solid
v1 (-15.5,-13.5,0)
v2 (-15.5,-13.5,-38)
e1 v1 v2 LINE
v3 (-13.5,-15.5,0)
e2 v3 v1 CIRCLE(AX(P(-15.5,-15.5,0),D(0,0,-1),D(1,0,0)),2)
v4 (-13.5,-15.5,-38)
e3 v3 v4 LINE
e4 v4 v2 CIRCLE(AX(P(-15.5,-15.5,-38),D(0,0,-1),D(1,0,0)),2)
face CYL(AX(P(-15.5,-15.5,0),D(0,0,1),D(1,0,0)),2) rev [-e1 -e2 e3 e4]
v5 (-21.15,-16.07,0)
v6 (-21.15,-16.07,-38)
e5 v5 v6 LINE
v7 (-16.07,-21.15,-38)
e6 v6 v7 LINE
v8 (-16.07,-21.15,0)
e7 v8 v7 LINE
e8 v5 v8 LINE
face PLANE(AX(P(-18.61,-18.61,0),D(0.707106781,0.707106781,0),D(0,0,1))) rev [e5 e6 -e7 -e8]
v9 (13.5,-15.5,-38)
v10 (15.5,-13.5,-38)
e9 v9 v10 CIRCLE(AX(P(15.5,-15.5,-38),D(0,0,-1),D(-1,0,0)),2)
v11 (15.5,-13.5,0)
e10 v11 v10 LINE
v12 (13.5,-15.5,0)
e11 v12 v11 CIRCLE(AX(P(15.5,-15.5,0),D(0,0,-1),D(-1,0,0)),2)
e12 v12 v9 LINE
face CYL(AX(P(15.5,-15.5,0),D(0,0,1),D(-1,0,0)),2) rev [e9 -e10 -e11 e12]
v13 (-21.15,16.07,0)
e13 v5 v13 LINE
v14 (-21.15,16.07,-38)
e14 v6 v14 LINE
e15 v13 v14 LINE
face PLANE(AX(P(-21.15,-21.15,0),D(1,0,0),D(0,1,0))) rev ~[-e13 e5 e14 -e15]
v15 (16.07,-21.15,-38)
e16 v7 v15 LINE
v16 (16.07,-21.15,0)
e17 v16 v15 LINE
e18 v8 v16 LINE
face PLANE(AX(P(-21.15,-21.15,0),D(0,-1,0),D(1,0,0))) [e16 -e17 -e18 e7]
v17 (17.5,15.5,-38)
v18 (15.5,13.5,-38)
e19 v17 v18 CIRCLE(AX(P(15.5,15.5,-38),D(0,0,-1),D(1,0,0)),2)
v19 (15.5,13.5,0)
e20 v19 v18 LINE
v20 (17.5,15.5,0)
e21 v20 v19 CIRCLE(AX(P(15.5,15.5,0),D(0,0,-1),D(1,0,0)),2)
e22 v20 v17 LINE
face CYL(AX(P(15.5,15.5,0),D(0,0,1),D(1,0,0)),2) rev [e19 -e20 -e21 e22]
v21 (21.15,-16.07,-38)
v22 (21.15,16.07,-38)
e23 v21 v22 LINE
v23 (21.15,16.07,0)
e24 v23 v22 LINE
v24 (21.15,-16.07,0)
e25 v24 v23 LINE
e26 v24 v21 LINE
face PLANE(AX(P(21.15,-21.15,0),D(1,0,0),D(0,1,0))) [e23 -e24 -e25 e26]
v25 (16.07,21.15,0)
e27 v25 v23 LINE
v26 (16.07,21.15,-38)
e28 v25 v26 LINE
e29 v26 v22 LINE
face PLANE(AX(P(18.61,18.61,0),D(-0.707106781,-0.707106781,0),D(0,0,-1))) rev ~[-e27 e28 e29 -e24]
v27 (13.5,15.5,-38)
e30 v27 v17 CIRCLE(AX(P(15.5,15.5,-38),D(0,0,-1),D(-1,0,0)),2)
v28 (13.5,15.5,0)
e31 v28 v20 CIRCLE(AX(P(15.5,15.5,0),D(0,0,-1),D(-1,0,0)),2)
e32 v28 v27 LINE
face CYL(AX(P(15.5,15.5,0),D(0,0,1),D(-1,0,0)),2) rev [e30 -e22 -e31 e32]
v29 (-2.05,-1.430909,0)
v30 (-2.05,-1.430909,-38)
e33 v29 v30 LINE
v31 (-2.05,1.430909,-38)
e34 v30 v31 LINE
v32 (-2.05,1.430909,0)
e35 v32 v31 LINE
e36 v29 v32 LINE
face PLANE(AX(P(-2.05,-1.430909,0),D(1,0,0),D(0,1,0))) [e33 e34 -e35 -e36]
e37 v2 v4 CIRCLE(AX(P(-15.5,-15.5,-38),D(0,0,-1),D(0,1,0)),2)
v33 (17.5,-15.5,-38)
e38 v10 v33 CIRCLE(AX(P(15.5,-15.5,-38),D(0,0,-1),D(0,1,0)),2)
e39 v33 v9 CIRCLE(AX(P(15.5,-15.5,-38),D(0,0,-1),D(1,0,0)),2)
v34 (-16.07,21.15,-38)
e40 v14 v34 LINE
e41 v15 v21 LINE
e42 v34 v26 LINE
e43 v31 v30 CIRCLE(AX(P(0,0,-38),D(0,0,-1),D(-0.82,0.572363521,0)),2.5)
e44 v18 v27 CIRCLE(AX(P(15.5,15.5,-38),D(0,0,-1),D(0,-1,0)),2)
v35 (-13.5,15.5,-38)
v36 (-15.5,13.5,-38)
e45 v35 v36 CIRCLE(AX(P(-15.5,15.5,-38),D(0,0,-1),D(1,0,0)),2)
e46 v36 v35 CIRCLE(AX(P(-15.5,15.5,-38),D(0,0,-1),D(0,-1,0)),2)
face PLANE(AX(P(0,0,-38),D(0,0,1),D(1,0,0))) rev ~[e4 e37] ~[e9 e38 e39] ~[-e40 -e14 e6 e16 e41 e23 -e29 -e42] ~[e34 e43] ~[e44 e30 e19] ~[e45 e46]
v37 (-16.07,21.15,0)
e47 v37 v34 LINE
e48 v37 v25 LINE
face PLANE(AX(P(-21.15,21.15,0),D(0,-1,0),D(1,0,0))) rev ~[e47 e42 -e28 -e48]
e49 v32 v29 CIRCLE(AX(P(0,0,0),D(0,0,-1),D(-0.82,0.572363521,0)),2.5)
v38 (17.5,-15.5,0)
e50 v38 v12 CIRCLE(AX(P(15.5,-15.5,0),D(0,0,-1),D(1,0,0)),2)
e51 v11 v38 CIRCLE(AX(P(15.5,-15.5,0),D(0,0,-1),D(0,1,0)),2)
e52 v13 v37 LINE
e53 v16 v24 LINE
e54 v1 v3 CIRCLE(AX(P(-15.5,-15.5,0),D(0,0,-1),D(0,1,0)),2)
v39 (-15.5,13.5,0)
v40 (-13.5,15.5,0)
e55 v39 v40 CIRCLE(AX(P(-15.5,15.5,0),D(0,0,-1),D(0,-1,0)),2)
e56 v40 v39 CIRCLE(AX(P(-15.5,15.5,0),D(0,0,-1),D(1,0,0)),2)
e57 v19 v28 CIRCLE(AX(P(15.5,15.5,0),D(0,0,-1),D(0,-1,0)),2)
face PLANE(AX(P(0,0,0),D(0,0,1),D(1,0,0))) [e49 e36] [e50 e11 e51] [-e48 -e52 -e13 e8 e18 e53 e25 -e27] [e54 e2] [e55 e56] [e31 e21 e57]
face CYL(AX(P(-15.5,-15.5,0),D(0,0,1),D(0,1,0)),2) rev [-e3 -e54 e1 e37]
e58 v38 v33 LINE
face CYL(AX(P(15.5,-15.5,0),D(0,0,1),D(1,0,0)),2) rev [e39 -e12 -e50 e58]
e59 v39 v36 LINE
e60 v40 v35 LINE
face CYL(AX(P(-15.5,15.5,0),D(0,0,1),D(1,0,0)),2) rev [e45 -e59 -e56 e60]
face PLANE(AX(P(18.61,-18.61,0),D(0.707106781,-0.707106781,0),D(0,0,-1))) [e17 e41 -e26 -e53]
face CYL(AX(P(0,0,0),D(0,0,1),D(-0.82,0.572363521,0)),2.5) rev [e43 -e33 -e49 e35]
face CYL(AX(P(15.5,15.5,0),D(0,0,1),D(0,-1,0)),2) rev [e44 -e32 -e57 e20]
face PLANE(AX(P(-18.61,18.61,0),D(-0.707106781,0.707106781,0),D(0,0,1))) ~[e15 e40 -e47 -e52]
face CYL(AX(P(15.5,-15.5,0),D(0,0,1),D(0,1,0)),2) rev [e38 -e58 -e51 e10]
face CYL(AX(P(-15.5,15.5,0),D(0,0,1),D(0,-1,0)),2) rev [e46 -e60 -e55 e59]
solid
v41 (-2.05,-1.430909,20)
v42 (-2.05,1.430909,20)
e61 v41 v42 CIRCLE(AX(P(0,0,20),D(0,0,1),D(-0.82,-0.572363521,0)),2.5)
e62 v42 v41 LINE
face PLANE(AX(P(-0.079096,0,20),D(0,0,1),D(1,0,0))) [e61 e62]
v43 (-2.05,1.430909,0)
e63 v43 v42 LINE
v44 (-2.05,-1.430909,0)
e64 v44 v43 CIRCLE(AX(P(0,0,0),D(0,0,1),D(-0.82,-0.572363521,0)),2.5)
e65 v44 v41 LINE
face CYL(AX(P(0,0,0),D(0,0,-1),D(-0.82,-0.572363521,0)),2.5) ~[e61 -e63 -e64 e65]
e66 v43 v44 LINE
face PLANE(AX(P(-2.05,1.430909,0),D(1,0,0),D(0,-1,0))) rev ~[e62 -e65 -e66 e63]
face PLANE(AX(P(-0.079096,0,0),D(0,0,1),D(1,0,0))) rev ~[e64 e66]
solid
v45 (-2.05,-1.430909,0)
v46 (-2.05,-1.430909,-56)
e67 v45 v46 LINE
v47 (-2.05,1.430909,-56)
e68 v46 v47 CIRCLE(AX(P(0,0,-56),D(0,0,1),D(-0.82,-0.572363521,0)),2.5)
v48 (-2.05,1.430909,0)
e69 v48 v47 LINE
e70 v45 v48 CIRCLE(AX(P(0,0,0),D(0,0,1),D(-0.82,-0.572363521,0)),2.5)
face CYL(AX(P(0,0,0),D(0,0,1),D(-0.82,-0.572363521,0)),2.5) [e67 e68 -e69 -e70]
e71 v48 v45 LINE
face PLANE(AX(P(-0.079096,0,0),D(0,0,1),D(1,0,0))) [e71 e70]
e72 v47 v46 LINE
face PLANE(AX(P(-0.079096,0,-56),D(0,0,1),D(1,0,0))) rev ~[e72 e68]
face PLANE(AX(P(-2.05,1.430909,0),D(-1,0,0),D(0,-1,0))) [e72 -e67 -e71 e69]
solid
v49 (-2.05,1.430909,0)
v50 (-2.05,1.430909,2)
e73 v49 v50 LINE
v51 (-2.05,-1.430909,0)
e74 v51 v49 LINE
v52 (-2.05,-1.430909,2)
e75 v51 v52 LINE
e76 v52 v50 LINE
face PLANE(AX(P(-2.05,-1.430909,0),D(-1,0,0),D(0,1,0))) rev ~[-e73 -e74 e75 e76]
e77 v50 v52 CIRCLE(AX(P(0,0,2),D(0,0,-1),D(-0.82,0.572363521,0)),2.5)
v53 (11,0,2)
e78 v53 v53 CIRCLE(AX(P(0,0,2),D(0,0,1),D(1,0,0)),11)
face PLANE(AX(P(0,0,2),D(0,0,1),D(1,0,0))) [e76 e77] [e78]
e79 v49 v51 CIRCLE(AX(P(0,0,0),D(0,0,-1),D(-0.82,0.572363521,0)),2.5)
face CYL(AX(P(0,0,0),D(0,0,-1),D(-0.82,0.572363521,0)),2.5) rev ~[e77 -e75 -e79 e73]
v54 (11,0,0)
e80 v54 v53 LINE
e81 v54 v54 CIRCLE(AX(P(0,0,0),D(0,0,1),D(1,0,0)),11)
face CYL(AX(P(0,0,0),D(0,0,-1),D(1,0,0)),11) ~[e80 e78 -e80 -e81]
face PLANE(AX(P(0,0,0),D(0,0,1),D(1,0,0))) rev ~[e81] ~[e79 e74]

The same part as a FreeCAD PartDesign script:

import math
import FreeCAD as App
import Part
import Sketcher
from FreeCAD import Vector


def edges_at(feature, points):
    """Names of the edges that pass closest to the given points."""
    edges = feature.Shape.Edges
    near = lambda p: min(range(len(edges)), key=lambda i: edges[i].distToShape(Part.Vertex(*p))[0])
    return sorted({f"Edge{near(p) + 1}" for p in points})


def add_polygon(sketch, points):
    """Adds a closed chain of lines whose ends are joined by coincident constraints."""
    first, n = sketch.GeometryCount, len(points)
    for a, b in zip(points, points[1:] + points[:1]):
        sketch.addGeometry(Part.LineSegment(App.Vector(*a, 0), App.Vector(*b, 0)), False)
    for i in range(n):
        sketch.addConstraint(Sketcher.Constraint("Coincident", first + i, 2, first + (i + 1) % n, 1))

doc = App.newDocument("Part")
params = doc.addObject("Spreadsheet::Sheet", "Params")
for row, (alias, value) in enumerate([
    ("sketch1_radius", "2.5 mm"),
    ("pad1_length", "20 mm"),
    ("sketch2_radius", "2 mm"),
    ("sketch2_radius2", "2.5 mm"),
    ("sketch2_width", "42.3 mm"),
    ("pad2_length", "38 mm"),
    ("chamfer_size", "5.08 mm"),
    ("sketch3_diameter", "22 mm"),
    ("sketch3_radius", "2.5 mm"),
    ("pad3_length", "2 mm"),
    ("sketch4_radius", "2.5 mm"),
    ("pad4_length", "56 mm"),
], start=1):
    params.set(f"A{row}", alias)
    params.set(f"B{row}", "=" + value)
    params.setAlias(f"B{row}", alias)

body = doc.addObject("PartDesign::Body", "Body")

# Sketch on XY plane
sketch1 = body.newObject("Sketcher::SketchObject", "Sketch")
sketch1.AttachmentSupport = (doc.getObject("XY_Plane"), [""])
sketch1.MapMode = "FlatFace"
sketch1.addGeometry(Part.LineSegment(Vector(-2, 1.4, 0), Vector(-2, -1.4, 0)), False)
sketch1.addGeometry(Part.ArcOfCircle(Part.Circle(Vector(0, 0, 0), Vector(0, 0, 1), 2.5), math.radians(-145), math.radians(145)), False)
sketch1.addConstraint(Sketcher.Constraint("Coincident", 0, 1, 1, 2))
sketch1.addConstraint(Sketcher.Constraint("Coincident", 1, 1, 0, 2))
sketch1.addConstraint(Sketcher.Constraint("Vertical", 0))
sketch1.addConstraint(Sketcher.Constraint("Coincident", 1, 3, -1, 1))
sketch1.addConstraint(Sketcher.Constraint("Radius", 1, 2.5))
sketch1.addConstraint(Sketcher.Constraint("DistanceX", 0, 1, -1, 1, 2.05))
sketch1.setExpression("Constraints[4]", "Params.sketch1_radius")
pad1 = body.newObject("PartDesign::Pad", "Pad")
pad1.Profile = sketch1
pad1.setExpression("Length", "Params.pad1_length")
body2 = doc.addObject("PartDesign::Body", "Body001")

# Sketch on XY plane
sketch2 = body2.newObject("Sketcher::SketchObject", "Sketch001")
sketch2.AttachmentSupport = (doc.getObject("XY_Plane001"), [""])
sketch2.MapMode = "FlatFace"
add_polygon(sketch2, [(-21.1, 21.1), (-21.1, -21.1), (21.1, -21.1), (21.1, 21.1)])  # lines 0-3
sketch2.addGeometry(Part.ArcOfCircle(Part.Circle(Vector(-15.5, -15.5, 0), Vector(0, 0, 1), 2), math.radians(90), math.radians(360)), False)  # 4
sketch2.addGeometry(Part.ArcOfCircle(Part.Circle(Vector(-15.5, -15.5, 0), Vector(0, 0, 1), 2), math.radians(0), math.radians(90)), False)  # 5
sketch2.addGeometry(Part.ArcOfCircle(Part.Circle(Vector(15.5, -15.5, 0), Vector(0, 0, 1), 2), math.radians(180), math.radians(360)), False)  # 6
sketch2.addGeometry(Part.ArcOfCircle(Part.Circle(Vector(15.5, -15.5, 0), Vector(0, 0, 1), 2), math.radians(90), math.radians(180)), False)  # 7
sketch2.addGeometry(Part.ArcOfCircle(Part.Circle(Vector(15.5, -15.5, 0), Vector(0, 0, 1), 2), math.radians(0), math.radians(90)), False)  # 8
sketch2.addGeometry(Part.ArcOfCircle(Part.Circle(Vector(-15.5, 15.5, 0), Vector(0, 0, 1), 2), math.radians(0), math.radians(270)), False)  # 9
sketch2.addGeometry(Part.ArcOfCircle(Part.Circle(Vector(-15.5, 15.5, 0), Vector(0, 0, 1), 2), math.radians(-90), math.radians(0)), False)  # 10
sketch2.addGeometry(Part.LineSegment(Vector(-2, -1.4, 0), Vector(-2, 1.4, 0)), False)  # 11
sketch2.addGeometry(Part.ArcOfCircle(Part.Circle(Vector(0, 0, 0), Vector(0, 0, 1), 2.5), math.radians(-145), math.radians(145)), False)  # 12
sketch2.addGeometry(Part.ArcOfCircle(Part.Circle(Vector(15.5, 15.5, 0), Vector(0, 0, 1), 2), math.radians(-90), math.radians(0)), False)  # 13
sketch2.addGeometry(Part.ArcOfCircle(Part.Circle(Vector(15.5, 15.5, 0), Vector(0, 0, 1), 2), math.radians(180), math.radians(270)), False)  # 14
sketch2.addGeometry(Part.ArcOfCircle(Part.Circle(Vector(15.5, 15.5, 0), Vector(0, 0, 1), 2), math.radians(0), math.radians(180)), False)  # 15
sketch2.addConstraint(Sketcher.Constraint("Tangent", 4, 1, 5, 2))
sketch2.addConstraint(Sketcher.Constraint("Coincident", 5, 1, 4, 2))
sketch2.addConstraint(Sketcher.Constraint("Tangent", 6, 1, 7, 2))
sketch2.addConstraint(Sketcher.Constraint("Tangent", 7, 1, 8, 2))
sketch2.addConstraint(Sketcher.Constraint("Tangent", 8, 1, 6, 2))
sketch2.addConstraint(Sketcher.Constraint("Tangent", 9, 1, 10, 2))
sketch2.addConstraint(Sketcher.Constraint("Coincident", 10, 1, 9, 2))
sketch2.addConstraint(Sketcher.Constraint("Coincident", 11, 1, 12, 1))
sketch2.addConstraint(Sketcher.Constraint("Coincident", 12, 2, 11, 2))
sketch2.addConstraint(Sketcher.Constraint("Tangent", 13, 1, 14, 2))
sketch2.addConstraint(Sketcher.Constraint("Tangent", 14, 1, 15, 2))
sketch2.addConstraint(Sketcher.Constraint("Tangent", 15, 1, 13, 2))
sketch2.addConstraint(Sketcher.Constraint("Vertical", 0))
sketch2.addConstraint(Sketcher.Constraint("Horizontal", 1))
sketch2.addConstraint(Sketcher.Constraint("Vertical", 2))
sketch2.addConstraint(Sketcher.Constraint("Horizontal", 3))
sketch2.addConstraint(Sketcher.Constraint("Vertical", 11))
sketch2.addConstraint(Sketcher.Constraint("Coincident", 12, 3, -1, 1))
sketch2.addConstraint(Sketcher.Constraint("Equal", 5, 6))
sketch2.addConstraint(Sketcher.Constraint("Equal", 8, 9))
sketch2.addConstraint(Sketcher.Constraint("Equal", 10, 13))
sketch2.addConstraint(Sketcher.Constraint("Symmetric", 6, 3, 9, 3, -1, 1))
sketch2.addConstraint(Sketcher.Constraint("Symmetric", 4, 3, 13, 3, -1, 1))
sketch2.addConstraint(Sketcher.Constraint("Symmetric", 0, 2, 2, 2, -1, 1))
sketch2.addConstraint(Sketcher.Constraint("Symmetric", 4, 3, 6, 3, -2))
sketch2.addConstraint(Sketcher.Constraint("Horizontal", 8, 3, 5, 1))
sketch2.addConstraint(Sketcher.Constraint("Horizontal", 5, 1, 6, 1))
sketch2.addConstraint(Sketcher.Constraint("Horizontal", 6, 1, 8, 1))
sketch2.addConstraint(Sketcher.Constraint("Horizontal", 15, 3, 9, 1))
sketch2.addConstraint(Sketcher.Constraint("Horizontal", 9, 1, 14, 1))
sketch2.addConstraint(Sketcher.Constraint("Horizontal", 14, 1, 15, 1))
sketch2.addConstraint(Sketcher.Constraint("Vertical", 10, 3, 4, 1))
sketch2.addConstraint(Sketcher.Constraint("Vertical", 15, 3, 7, 1))
sketch2.addConstraint(Sketcher.Constraint("Vertical", 4, 1, 10, 1))
sketch2.addConstraint(Sketcher.Constraint("Vertical", 7, 1, 13, 1))
sketch2.addConstraint(Sketcher.Constraint("Equal", 3, 0))
sketch2.addConstraint(Sketcher.Constraint("Radius", 4, 2.0))
sketch2.addConstraint(Sketcher.Constraint("Radius", 12, 2.5))
sketch2.addConstraint(Sketcher.Constraint("DistanceX", 1, 1, 1, 2, 42.3))
sketch2.addConstraint(Sketcher.Constraint("DistanceX", 4, 3, 6, 3, 31.0))
sketch2.addConstraint(Sketcher.Constraint("DistanceY", 4, 3, 9, 3, 31.0))
sketch2.addConstraint(Sketcher.Constraint("DistanceX", 11, 1, -1, 1, 2.05))
sketch2.setExpression("Constraints[40]", "Params.sketch2_radius")
sketch2.setExpression("Constraints[41]", "Params.sketch2_radius2")
sketch2.setExpression("Constraints[42]", "Params.sketch2_width")
pad2 = body2.newObject("PartDesign::Pad", "Pad001")
pad2.Profile = sketch2
pad2.setExpression("Length", "Params.pad2_length")
pad2.Reversed = True
doc.recompute()

chamfer = body2.newObject("PartDesign::Chamfer", "Chamfer")
chamfer.Base = (pad2, edges_at(pad2, [
    (-21.15, 21.15, -19),
    (21.15, 21.15, -19),
    (21.15, -21.15, -19),
    (-21.15, -21.15, -19),
]))
chamfer.setExpression("Size", "Params.chamfer_size")
body3 = doc.addObject("PartDesign::Body", "Body002")

# Sketch on XY plane
sketch3 = body3.newObject("Sketcher::SketchObject", "Sketch002")
sketch3.AttachmentSupport = (doc.getObject("XY_Plane002"), [""])
sketch3.MapMode = "FlatFace"
sketch3.addGeometry(Part.Circle(Vector(0, 0, 0), Vector(0, 0, 1), 11), False)
sketch3.addGeometry(Part.LineSegment(Vector(-2, -1.4, 0), Vector(-2, 1.4, 0)), False)
sketch3.addGeometry(Part.ArcOfCircle(Part.Circle(Vector(0, 0, 0), Vector(0, 0, 1), 2.5), math.radians(-145), math.radians(145)), False)
sketch3.addConstraint(Sketcher.Constraint("Coincident", 1, 1, 2, 1))
sketch3.addConstraint(Sketcher.Constraint("Coincident", 2, 2, 1, 2))
sketch3.addConstraint(Sketcher.Constraint("Vertical", 1))
sketch3.addConstraint(Sketcher.Constraint("Coincident", 0, 3, -1, 1))
sketch3.addConstraint(Sketcher.Constraint("Coincident", 2, 3, -1, 1))
sketch3.addConstraint(Sketcher.Constraint("Diameter", 0, 22.0))
sketch3.addConstraint(Sketcher.Constraint("Radius", 2, 2.5))
sketch3.addConstraint(Sketcher.Constraint("DistanceX", 1, 1, -1, 1, 2.05))
sketch3.setExpression("Constraints[5]", "Params.sketch3_diameter")
sketch3.setExpression("Constraints[6]", "Params.sketch3_radius")
pad3 = body3.newObject("PartDesign::Pad", "Pad002")
pad3.Profile = sketch3
pad3.setExpression("Length", "Params.pad3_length")
body4 = doc.addObject("PartDesign::Body", "Body003")

# Sketch on XY plane
sketch4 = body4.newObject("Sketcher::SketchObject", "Sketch003")
sketch4.AttachmentSupport = (doc.getObject("XY_Plane003"), [""])
sketch4.MapMode = "FlatFace"
sketch4.addGeometry(Part.LineSegment(Vector(-2, 1.4, 0), Vector(-2, -1.4, 0)), False)
sketch4.addGeometry(Part.ArcOfCircle(Part.Circle(Vector(0, 0, 0), Vector(0, 0, 1), 2.5), math.radians(-145), math.radians(145)), False)
sketch4.addConstraint(Sketcher.Constraint("Coincident", 0, 1, 1, 2))
sketch4.addConstraint(Sketcher.Constraint("Coincident", 1, 1, 0, 2))
sketch4.addConstraint(Sketcher.Constraint("Vertical", 0))
sketch4.addConstraint(Sketcher.Constraint("Coincident", 1, 3, -1, 1))
sketch4.addConstraint(Sketcher.Constraint("Radius", 1, 2.5))
sketch4.addConstraint(Sketcher.Constraint("DistanceX", 0, 1, -1, 1, 2.05))
sketch4.setExpression("Constraints[4]", "Params.sketch4_radius")
pad4 = body4.newObject("PartDesign::Pad", "Pad003")
pad4.Profile = sketch4
pad4.setExpression("Length", "Params.pad4_length")
pad4.Reversed = True

doc.recompute()
